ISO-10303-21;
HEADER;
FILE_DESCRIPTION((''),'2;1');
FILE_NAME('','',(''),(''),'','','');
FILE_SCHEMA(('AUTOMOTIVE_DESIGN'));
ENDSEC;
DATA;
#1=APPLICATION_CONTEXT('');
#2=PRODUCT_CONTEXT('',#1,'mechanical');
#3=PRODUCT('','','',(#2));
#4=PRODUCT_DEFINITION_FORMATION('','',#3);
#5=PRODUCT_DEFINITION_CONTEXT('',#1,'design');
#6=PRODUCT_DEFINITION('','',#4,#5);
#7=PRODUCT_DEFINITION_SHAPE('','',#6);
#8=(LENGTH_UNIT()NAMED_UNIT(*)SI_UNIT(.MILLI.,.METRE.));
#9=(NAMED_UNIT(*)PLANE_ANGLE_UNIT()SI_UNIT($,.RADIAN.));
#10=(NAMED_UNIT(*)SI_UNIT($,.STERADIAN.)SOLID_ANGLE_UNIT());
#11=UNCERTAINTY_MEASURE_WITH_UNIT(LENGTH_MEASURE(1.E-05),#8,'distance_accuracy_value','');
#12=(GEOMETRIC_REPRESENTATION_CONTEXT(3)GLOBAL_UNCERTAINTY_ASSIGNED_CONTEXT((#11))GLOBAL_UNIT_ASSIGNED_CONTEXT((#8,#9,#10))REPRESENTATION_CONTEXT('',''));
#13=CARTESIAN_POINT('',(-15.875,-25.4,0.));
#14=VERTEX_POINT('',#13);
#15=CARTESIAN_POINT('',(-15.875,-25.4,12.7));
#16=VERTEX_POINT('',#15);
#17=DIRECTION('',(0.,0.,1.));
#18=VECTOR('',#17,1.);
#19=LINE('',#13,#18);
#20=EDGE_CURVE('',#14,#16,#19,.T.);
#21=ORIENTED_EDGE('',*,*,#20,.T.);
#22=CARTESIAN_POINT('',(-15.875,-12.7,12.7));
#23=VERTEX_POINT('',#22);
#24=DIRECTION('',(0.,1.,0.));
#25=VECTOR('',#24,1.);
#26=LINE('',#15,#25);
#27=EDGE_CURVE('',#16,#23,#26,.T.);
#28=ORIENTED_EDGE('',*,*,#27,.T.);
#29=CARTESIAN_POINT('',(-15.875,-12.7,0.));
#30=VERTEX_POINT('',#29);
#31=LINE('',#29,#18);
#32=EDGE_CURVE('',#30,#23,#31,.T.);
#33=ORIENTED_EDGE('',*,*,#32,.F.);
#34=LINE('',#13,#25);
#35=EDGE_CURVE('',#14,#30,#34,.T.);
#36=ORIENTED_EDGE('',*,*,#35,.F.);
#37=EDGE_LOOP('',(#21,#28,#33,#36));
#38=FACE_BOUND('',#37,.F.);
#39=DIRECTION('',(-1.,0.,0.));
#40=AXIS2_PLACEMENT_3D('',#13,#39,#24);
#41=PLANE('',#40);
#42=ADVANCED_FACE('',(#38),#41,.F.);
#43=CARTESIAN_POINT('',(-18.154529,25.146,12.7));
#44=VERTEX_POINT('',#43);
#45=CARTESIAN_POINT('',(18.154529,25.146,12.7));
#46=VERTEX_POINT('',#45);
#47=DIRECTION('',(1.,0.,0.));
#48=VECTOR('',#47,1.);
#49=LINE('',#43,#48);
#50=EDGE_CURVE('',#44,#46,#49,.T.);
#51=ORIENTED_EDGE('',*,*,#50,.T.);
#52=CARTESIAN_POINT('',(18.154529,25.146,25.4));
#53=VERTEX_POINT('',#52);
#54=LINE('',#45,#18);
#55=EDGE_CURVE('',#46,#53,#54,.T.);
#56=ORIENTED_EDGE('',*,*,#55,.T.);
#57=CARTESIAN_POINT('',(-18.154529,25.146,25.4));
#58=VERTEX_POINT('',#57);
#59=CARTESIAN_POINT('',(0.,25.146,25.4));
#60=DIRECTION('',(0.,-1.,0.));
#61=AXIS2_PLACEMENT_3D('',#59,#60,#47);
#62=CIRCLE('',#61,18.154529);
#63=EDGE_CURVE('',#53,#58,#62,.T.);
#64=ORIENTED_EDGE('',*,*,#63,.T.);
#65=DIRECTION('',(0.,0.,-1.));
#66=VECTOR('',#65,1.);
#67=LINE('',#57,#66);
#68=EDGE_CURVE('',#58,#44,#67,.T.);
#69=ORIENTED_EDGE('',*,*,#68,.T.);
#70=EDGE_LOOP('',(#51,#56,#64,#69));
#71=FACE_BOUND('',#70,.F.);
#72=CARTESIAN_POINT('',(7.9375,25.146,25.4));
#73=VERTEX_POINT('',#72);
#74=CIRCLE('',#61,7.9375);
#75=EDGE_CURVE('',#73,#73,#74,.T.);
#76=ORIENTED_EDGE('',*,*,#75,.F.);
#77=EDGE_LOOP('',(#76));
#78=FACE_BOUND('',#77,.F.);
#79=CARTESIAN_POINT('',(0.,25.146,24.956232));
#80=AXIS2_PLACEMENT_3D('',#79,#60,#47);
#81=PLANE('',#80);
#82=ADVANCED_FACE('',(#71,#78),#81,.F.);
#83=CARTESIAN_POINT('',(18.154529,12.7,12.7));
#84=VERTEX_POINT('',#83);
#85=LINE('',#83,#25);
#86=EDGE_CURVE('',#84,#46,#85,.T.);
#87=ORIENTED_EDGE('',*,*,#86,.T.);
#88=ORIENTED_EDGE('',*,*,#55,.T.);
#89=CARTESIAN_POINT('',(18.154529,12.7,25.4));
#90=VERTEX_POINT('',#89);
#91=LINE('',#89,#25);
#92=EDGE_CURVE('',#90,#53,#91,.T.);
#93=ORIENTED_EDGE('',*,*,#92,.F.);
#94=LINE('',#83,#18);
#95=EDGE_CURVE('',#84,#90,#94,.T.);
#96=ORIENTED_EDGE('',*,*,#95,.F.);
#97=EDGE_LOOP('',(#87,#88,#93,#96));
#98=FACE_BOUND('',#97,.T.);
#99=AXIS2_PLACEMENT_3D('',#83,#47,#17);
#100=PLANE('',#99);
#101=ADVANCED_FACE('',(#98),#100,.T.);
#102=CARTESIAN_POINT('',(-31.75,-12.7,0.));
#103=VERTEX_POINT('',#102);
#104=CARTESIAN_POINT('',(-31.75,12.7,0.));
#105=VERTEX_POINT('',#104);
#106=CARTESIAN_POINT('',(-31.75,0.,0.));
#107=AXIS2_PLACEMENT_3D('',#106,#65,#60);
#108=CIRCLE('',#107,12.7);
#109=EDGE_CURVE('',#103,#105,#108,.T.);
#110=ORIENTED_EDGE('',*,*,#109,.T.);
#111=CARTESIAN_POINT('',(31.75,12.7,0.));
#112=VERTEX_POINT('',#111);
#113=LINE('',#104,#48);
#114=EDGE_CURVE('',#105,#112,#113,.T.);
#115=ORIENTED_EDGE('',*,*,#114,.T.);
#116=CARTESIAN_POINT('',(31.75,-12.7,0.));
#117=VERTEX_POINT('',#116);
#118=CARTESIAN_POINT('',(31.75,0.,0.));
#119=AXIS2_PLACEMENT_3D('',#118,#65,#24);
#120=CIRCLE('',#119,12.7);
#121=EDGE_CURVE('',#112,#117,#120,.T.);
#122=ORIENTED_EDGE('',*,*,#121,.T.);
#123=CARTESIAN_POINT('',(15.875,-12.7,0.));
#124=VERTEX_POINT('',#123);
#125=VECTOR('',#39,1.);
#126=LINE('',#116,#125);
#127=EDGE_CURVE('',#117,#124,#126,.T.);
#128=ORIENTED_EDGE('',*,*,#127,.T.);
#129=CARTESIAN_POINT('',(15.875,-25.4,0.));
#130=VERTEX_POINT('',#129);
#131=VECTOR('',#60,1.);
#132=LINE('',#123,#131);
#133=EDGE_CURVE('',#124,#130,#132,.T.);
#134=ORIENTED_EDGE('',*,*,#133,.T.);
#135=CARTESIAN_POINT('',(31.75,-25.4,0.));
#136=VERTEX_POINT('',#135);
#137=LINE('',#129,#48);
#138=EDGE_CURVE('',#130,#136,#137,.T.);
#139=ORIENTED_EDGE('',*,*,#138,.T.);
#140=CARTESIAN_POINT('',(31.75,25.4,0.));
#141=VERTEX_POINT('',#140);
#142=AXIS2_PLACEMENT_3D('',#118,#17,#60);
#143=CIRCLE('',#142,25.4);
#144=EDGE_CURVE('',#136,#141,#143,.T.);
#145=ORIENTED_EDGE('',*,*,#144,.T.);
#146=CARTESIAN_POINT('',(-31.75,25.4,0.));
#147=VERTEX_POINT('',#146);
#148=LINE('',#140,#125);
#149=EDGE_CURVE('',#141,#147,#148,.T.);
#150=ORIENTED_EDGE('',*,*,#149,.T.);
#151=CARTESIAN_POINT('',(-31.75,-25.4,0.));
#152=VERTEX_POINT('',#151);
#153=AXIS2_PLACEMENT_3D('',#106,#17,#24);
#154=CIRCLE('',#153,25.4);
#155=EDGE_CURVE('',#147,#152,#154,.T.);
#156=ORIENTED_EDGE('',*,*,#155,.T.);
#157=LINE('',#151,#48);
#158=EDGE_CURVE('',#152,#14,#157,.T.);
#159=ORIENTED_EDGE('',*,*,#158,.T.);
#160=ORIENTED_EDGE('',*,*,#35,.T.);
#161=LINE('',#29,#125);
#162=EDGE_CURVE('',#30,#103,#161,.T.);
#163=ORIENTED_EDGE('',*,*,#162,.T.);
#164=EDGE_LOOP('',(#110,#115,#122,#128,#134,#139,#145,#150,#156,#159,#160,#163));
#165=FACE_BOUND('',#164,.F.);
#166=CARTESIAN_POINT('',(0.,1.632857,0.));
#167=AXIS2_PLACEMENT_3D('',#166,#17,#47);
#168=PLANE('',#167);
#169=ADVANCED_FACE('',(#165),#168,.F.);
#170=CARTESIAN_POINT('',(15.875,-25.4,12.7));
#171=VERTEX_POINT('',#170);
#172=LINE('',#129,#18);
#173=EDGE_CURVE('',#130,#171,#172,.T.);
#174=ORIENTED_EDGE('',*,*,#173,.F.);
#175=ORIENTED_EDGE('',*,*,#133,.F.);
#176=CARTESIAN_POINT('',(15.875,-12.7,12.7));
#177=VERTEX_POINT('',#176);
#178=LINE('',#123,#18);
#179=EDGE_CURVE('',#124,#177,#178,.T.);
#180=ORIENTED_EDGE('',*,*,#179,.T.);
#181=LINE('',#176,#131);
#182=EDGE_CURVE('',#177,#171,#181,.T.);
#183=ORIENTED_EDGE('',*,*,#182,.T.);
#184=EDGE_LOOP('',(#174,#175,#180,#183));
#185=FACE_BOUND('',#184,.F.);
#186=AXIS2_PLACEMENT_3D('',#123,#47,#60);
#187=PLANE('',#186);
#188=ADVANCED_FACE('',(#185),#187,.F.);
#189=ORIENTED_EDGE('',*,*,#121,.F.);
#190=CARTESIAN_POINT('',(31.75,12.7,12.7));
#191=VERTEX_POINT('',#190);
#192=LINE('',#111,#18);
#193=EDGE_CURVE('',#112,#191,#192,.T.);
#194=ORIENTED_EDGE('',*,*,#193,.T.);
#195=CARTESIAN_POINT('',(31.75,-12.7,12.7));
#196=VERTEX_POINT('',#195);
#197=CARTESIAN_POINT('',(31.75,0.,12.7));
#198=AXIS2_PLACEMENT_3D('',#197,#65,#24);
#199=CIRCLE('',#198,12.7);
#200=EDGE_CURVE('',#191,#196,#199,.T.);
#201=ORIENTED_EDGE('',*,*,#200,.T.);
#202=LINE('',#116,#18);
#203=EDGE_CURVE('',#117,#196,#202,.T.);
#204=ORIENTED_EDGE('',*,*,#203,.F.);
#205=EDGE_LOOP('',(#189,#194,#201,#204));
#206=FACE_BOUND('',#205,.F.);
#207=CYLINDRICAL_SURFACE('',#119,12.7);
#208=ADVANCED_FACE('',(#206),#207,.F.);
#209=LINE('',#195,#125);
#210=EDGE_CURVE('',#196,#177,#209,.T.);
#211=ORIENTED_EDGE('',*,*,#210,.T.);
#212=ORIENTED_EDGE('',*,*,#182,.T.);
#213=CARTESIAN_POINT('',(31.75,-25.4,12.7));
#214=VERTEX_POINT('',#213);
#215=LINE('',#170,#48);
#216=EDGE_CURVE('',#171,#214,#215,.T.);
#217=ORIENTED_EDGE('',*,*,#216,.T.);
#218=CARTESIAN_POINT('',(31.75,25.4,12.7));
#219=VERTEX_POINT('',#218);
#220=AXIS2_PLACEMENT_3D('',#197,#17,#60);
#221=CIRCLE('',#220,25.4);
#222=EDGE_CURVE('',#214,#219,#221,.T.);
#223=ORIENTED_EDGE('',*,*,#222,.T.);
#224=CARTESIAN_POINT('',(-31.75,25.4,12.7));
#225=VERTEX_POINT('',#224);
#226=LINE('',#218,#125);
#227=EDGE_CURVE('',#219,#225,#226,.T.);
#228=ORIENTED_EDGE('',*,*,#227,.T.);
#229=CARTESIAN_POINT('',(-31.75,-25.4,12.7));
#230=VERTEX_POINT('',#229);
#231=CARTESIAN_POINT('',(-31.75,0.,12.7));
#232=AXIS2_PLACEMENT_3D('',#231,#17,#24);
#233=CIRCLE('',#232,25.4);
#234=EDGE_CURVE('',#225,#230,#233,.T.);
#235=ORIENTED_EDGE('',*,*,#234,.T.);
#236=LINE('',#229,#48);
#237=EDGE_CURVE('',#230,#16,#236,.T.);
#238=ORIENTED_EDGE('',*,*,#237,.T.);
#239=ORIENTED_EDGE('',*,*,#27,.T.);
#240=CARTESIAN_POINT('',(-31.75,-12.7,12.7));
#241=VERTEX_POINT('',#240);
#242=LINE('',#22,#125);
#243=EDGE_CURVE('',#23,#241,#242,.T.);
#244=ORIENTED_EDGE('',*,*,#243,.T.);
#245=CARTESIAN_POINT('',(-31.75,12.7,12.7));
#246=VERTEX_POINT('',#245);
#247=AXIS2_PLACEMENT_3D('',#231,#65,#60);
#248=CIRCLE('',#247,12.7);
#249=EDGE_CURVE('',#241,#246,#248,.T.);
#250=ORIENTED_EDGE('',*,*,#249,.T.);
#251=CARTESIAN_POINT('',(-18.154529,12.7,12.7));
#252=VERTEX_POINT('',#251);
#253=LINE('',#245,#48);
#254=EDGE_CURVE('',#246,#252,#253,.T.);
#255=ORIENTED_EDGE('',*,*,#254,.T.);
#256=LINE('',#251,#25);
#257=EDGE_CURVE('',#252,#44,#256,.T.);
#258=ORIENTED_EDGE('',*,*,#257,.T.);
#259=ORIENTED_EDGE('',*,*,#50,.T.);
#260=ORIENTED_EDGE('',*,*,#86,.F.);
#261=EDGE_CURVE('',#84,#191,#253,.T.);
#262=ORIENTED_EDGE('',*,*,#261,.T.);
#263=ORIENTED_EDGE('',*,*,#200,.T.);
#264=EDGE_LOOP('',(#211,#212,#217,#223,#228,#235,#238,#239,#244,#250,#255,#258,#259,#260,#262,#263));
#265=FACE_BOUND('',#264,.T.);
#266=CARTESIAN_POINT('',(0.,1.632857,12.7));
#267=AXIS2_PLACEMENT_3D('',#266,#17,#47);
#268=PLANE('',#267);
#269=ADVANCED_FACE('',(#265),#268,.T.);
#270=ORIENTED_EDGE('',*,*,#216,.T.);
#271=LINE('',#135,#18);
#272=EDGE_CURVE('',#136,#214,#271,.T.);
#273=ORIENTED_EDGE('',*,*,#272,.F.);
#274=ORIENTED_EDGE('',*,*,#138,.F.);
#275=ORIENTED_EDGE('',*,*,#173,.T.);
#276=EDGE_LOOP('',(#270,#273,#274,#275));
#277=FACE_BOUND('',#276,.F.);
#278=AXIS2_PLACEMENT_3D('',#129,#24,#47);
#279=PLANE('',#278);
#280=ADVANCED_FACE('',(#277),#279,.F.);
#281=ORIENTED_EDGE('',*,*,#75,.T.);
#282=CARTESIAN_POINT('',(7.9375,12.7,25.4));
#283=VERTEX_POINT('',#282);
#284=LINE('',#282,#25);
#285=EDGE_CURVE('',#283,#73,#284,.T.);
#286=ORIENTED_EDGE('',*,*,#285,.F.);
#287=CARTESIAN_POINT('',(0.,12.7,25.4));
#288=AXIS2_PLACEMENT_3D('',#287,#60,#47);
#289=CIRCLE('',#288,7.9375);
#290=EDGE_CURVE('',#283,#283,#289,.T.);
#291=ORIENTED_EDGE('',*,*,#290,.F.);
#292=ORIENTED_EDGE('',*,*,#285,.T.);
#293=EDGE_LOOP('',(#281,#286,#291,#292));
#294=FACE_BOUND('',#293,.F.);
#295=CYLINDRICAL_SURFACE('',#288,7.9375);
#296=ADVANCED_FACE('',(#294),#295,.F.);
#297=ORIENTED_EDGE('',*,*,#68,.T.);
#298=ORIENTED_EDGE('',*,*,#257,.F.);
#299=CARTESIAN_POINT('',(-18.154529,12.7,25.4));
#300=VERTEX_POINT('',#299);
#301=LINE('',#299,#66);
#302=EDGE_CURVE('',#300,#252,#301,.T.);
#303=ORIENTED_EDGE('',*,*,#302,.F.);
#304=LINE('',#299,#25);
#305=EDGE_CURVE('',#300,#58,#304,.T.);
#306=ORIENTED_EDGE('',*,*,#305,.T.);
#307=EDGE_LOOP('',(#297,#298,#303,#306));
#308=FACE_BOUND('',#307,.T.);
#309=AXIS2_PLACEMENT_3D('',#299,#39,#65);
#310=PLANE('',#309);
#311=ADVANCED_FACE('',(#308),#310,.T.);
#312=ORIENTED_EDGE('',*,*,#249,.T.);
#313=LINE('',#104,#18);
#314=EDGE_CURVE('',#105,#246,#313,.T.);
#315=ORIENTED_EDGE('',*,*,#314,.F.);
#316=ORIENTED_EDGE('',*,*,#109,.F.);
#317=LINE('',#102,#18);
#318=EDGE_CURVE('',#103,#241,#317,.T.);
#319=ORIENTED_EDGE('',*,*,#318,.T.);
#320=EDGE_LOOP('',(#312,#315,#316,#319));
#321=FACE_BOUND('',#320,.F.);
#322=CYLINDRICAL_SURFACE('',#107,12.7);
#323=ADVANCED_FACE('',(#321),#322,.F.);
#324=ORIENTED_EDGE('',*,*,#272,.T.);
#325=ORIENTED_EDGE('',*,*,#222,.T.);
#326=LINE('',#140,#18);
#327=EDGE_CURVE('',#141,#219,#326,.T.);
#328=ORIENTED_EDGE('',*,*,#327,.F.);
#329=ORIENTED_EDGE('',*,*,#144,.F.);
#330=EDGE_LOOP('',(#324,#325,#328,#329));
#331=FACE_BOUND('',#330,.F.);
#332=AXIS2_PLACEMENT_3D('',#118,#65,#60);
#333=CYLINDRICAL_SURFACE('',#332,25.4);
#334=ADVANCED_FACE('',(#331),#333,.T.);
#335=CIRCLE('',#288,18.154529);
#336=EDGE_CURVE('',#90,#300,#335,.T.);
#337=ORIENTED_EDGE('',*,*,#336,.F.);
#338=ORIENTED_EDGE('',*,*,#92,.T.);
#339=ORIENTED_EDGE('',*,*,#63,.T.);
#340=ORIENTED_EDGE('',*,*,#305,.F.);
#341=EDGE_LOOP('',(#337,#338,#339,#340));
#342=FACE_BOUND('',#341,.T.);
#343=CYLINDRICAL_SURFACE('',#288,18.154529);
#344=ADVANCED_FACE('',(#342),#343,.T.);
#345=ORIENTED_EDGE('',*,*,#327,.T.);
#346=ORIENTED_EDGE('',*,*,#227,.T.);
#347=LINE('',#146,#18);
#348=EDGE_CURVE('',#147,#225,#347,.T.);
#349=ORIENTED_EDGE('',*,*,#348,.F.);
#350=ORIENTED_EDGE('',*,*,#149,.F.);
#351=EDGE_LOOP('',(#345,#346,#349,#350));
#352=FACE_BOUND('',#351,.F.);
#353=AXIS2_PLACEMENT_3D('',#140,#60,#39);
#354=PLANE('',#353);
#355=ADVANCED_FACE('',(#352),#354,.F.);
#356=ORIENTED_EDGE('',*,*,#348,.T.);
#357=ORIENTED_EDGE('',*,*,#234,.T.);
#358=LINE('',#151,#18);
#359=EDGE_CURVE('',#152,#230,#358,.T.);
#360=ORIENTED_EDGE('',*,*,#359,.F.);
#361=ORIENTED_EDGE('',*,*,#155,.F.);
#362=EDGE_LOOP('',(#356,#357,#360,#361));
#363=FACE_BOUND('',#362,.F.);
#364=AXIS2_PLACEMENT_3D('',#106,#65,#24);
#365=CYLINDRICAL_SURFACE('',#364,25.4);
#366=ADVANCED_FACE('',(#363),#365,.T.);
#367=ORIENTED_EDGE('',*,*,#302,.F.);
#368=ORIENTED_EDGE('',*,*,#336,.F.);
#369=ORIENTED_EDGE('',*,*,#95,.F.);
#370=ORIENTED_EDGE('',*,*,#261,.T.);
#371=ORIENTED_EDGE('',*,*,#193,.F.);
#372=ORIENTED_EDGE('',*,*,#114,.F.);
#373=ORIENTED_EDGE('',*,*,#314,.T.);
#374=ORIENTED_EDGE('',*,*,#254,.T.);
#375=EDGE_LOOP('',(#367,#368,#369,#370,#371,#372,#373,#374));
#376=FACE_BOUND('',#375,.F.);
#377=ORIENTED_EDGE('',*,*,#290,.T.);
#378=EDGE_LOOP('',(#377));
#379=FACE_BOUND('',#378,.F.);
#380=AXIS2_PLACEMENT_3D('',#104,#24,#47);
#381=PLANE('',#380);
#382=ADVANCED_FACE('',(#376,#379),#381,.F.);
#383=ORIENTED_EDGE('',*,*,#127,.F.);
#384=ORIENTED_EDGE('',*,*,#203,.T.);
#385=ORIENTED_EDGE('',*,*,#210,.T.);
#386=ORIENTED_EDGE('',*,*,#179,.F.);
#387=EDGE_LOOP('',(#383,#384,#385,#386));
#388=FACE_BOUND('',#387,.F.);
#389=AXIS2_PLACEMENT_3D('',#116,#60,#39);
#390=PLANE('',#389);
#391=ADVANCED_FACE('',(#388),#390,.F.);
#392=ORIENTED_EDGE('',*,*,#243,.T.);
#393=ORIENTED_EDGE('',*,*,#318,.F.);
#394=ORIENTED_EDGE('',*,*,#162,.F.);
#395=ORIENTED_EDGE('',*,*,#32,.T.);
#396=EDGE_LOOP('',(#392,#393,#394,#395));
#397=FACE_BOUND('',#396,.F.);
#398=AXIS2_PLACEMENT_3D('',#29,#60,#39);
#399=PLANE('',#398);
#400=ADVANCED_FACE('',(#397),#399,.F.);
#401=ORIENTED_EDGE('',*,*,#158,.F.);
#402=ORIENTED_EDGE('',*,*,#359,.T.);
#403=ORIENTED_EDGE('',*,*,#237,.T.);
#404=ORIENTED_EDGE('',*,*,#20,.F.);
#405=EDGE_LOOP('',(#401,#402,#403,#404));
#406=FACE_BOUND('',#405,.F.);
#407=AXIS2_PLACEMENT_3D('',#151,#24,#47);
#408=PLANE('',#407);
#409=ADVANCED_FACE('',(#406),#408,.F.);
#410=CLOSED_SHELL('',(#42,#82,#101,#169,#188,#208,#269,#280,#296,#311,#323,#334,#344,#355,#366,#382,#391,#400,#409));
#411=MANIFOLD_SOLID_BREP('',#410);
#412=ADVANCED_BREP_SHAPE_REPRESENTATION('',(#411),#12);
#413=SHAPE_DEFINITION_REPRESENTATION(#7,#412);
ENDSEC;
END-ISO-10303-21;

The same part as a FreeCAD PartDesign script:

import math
import FreeCAD as App
import Part
import Sketcher

V = App.Vector
Q = App.Units.Quantity

doc = App.newDocument("Part")
body = doc.addObject("PartDesign::Body", "Body")

# Sketch on XY plane
sketch1 = body.newObject("Sketcher::SketchObject", "Sketch")
sketch1.AttachmentSupport = (doc.getObject("XY_Plane"), [""])
sketch1.MapMode = "FlatFace"
sketch1.addGeometry([
    Part.LineSegment(V(16, -25, 0), V(32, -25, 0)),  # 0
    Part.ArcOfCircle(Part.Circle(V(32, 0, 0), V(0, 0, 1), 25), math.radians(-90), math.radians(90)),  # 1
    Part.LineSegment(V(32, 25, 0), V(-32, 25, 0)),  # 2
    Part.ArcOfCircle(Part.Circle(V(-32, 0, 0), V(0, 0, 1), 25), math.radians(90), math.radians(270)),  # 3
    Part.LineSegment(V(-32, -25, 0), V(-16, -25, 0)),  # 4
    Part.LineSegment(V(-16, -25, 0), V(-16, -13, 0)),  # 5
    Part.LineSegment(V(-16, -13, 0), V(-32, -13, 0)),  # 6
    Part.ArcOfCircle(Part.Circle(V(-32, 0, 0), V(0, 0, 1), 13), math.radians(90), math.radians(270)),  # 7
    Part.LineSegment(V(-32, 13, 0), V(32, 13, 0)),  # 8
    Part.ArcOfCircle(Part.Circle(V(32, 0, 0), V(0, 0, 1), 13), math.radians(-90), math.radians(90)),  # 9
    Part.LineSegment(V(32, -13, 0), V(16, -13, 0)),  # 10
    Part.LineSegment(V(16, -13, 0), V(16, -25, 0)),  # 11
], False)
sketch1.addConstraint([
    Sketcher.Constraint("Tangent", 0, 2, 1, 1),
    Sketcher.Constraint("Tangent", 1, 2, 2, 1),
    Sketcher.Constraint("Tangent", 2, 2, 3, 1),
    Sketcher.Constraint("Tangent", 3, 2, 4, 1),
    Sketcher.Constraint("Coincident", 4, 2, 5, 1),
    Sketcher.Constraint("Coincident", 5, 2, 6, 1),
    Sketcher.Constraint("Tangent", 6, 2, 7, 2),
    Sketcher.Constraint("Tangent", 7, 1, 8, 1),
    Sketcher.Constraint("Tangent", 8, 2, 9, 2),
    Sketcher.Constraint("Tangent", 9, 1, 10, 1),
    Sketcher.Constraint("Coincident", 10, 2, 11, 1),
    Sketcher.Constraint("Coincident", 11, 2, 0, 1),
    Sketcher.Constraint("Horizontal", 0),
    Sketcher.Constraint("Horizontal", 2),
    Sketcher.Constraint("Horizontal", 4),
    Sketcher.Constraint("Vertical", 5),
    Sketcher.Constraint("Horizontal", 6),
    Sketcher.Constraint("Horizontal", 8),
    Sketcher.Constraint("Horizontal", 10),
    Sketcher.Constraint("Vertical", 11),
    Sketcher.Constraint("Coincident", 7, 3, 3, 3),
    Sketcher.Constraint("Coincident", 9, 3, 1, 3),
    Sketcher.Constraint("Equal", 1, 3),
    Sketcher.Constraint("Symmetric", 1, 3, 3, 3, -1, 1),
    Sketcher.Constraint("Equal", 0, 4),
    Sketcher.Constraint("Radius", 1, Q("1 in")),
    Sketcher.Constraint("Radius", 7, Q("0.5 in")),
    Sketcher.Constraint("DistanceX", 2, 2, 2, 1, Q("2.5 in")),
    Sketcher.Constraint("DistanceX", 0, 1, 0, 2, Q("0.625 in")),
])
pad1 = body.newObject("PartDesign::Pad", "Pad")
pad1.Profile = sketch1
pad1.Length = Q("0.5 in")

# Sketch on XZ plane
sketch2 = body.newObject("Sketcher::SketchObject", "Sketch001")
sketch2.AttachmentSupport = (doc.getObject("XZ_Plane"), [""])
sketch2.MapMode = "FlatFace"
sketch2.AttachmentOffset = App.Placement(V(0, 0, -0.5 * 25.4), App.Rotation())
sketch2.addGeometry([
    Part.LineSegment(V(18, 13, 0), V(18, 25, 0)),  # 0
    Part.ArcOfCircle(Part.Circle(V(0, 25, 0), V(0, 0, 1), 18), math.radians(0), math.radians(180)),  # 1
    Part.LineSegment(V(-18, 25, 0), V(-18, 13, 0)),  # 2
    Part.LineSegment(V(-18, 13, 0), V(18, 13, 0)),  # 3
    Part.Circle(V(0, 25, 0), V(0, 0, 1), 8),  # 4
], False)
sketch2.addConstraint([
    Sketcher.Constraint("Tangent", 0, 2, 1, 1),
    Sketcher.Constraint("Tangent", 1, 2, 2, 1),
    Sketcher.Constraint("Coincident", 2, 2, 3, 1),
    Sketcher.Constraint("Coincident", 3, 2, 0, 1),
    Sketcher.Constraint("Vertical", 0),
    Sketcher.Constraint("Vertical", 2),
    Sketcher.Constraint("Horizontal", 3),
    Sketcher.Constraint("Coincident", 4, 3, 1, 3),
    Sketcher.Constraint("PointOnObject", 1, 3, -2),
    Sketcher.Constraint("Diameter", 4, Q("0.625 in")),
    Sketcher.Constraint("DistanceY", 0, 1, 0, 2, Q("0.5 in")),
    Sketcher.Constraint("DistanceY", -1, 1, 1, 3, Q("1 in")),
    Sketcher.Constraint("Radius", 1, 18.154529),
])
pad2 = body.newObject("PartDesign::Pad", "Pad001")
pad2.Profile = sketch2
pad2.Length = Q("0.49 in")
pad2.Reversed = True

doc.recompute()
